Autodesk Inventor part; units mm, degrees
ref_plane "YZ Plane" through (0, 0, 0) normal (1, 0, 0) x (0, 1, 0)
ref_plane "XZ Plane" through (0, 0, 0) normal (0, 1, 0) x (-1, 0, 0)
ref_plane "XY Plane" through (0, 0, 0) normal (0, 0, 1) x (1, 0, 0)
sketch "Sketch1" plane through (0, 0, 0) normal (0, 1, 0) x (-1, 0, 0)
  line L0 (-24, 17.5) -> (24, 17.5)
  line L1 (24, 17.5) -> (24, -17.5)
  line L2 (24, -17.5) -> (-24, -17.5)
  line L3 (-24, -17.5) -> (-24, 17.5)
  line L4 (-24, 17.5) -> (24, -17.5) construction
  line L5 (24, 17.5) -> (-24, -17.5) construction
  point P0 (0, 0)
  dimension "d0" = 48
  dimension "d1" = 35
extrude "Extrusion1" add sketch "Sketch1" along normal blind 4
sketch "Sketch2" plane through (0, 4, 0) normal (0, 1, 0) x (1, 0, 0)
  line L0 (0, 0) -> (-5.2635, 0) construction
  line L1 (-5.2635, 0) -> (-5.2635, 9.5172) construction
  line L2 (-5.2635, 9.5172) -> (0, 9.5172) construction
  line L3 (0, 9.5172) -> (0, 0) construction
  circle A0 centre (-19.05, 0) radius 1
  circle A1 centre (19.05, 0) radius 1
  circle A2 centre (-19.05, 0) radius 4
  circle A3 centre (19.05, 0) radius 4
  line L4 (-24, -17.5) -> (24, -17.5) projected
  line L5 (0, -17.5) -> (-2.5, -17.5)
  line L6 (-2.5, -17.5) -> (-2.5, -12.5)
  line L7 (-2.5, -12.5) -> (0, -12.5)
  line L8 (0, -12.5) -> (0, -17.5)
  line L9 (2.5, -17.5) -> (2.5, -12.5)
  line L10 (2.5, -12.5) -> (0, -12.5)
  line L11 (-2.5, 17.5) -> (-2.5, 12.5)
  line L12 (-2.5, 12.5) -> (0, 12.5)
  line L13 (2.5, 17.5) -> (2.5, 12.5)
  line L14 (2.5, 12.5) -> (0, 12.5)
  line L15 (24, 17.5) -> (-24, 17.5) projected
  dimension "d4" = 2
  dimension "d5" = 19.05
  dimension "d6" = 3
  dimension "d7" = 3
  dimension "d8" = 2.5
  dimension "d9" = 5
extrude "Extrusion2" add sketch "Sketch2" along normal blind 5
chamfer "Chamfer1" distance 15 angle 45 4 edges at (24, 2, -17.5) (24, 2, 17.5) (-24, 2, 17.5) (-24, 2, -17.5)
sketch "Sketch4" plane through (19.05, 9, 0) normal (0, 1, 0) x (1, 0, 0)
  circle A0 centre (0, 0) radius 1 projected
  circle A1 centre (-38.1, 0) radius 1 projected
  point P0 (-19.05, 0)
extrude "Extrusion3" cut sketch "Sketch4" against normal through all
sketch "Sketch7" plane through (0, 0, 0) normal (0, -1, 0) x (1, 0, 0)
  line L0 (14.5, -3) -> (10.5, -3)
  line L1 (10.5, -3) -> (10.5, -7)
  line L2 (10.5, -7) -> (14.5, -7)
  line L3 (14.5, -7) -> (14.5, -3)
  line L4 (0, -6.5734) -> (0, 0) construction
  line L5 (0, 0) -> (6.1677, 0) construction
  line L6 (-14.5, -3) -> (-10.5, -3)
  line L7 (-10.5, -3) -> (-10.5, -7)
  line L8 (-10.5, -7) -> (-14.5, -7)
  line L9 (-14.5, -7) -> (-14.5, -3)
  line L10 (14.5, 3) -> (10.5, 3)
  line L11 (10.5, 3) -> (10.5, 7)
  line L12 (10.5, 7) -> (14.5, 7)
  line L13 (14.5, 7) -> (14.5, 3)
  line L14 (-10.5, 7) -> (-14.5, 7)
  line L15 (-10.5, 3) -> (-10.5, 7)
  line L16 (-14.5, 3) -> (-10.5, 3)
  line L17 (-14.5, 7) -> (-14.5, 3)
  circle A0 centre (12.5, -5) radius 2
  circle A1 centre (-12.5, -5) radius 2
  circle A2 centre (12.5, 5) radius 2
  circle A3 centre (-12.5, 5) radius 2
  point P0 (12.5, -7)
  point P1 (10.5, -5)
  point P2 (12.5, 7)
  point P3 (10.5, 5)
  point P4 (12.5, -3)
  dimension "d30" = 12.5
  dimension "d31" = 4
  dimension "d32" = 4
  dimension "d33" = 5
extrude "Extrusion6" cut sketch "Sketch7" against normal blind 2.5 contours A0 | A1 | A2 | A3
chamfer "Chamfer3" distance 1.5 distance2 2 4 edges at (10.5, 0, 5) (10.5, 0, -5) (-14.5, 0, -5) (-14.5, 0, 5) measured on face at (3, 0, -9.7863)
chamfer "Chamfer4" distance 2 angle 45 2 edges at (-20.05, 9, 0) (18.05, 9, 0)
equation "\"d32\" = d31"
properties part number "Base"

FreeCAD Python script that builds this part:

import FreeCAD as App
import Part
import Sketcher
from FreeCAD import Vector
Q = App.Units.Quantity


def edges_at(feature, points):
    """Names of the edges that pass closest to the given points."""
    edges = feature.Shape.Edges
    near = lambda p: min(range(len(edges)), key=lambda i: edges[i].distToShape(Part.Vertex(*p))[0])
    return sorted({f"Edge{near(p) + 1}" for p in points})


def add_polygon(sketch, points):
    """Adds a closed chain of lines whose ends are joined by coincident constraints."""
    first, n = sketch.GeometryCount, len(points)
    for a, b in zip(points, points[1:] + points[:1]):
        sketch.addGeometry(Part.LineSegment(App.Vector(*a, 0), App.Vector(*b, 0)), False)
    for i in range(n):
        sketch.addConstraint(Sketcher.Constraint("Coincident", first + i, 2, first + (i + 1) % n, 1))

doc = App.newDocument("Part")
body = doc.addObject("PartDesign::Body", "Body")

sketch1 = body.newObject("Sketcher::SketchObject", "Sketch")
sketch1.AttachmentSupport = (doc.getObject("XZ_Plane"), [""])
sketch1.MapMode = "FlatFace"
add_polygon(sketch1, [(-24, 18), (24, 18), (24, -18), (-24, -18)])
sketch1.addConstraint(Sketcher.Constraint("Horizontal", 0))
sketch1.addConstraint(Sketcher.Constraint("Vertical", 1))
sketch1.addConstraint(Sketcher.Constraint("Horizontal", 2))
sketch1.addConstraint(Sketcher.Constraint("Vertical", 3))
sketch1.addConstraint(Sketcher.Constraint("Symmetric", 0, 2, 2, 2, -1, 1))
sketch1.addConstraint(Sketcher.Constraint("DistanceX", 0, 1, 0, 2, Q("48 mm")))
sketch1.addConstraint(Sketcher.Constraint("DistanceY", 1, 2, 1, 1, Q("35 mm")))
pad1 = body.newObject("PartDesign::Pad", "Pad")
pad1.Profile = sketch1
pad1.Length = 4
pad1.Reversed = True

sketch2 = body.newObject("Sketcher::SketchObject", "Sketch001")
sketch2.AttachmentSupport = (doc.getObject("XZ_Plane"), [""])
sketch2.MapMode = "FlatFace"
sketch2.AttachmentOffset = App.Placement(Vector(0, 0, -4), App.Rotation())
sketch2.addGeometry(Part.Circle(Vector(-19.1, 0, 0), Vector(0, 0, 1), 4), False)
sketch2.addGeometry(Part.Circle(Vector(-19.1, 0, 0), Vector(0, 0, 1), 1), False)
sketch2.addGeometry(Part.Circle(Vector(19.1, 0, 0), Vector(0, 0, 1), 4), False)
sketch2.addGeometry(Part.Circle(Vector(19.1, 0, 0), Vector(0, 0, 1), 1), False)
add_polygon(sketch2, [(-2.5, 12.5), (-2.5, 17.5), (2.5, 17.5), (2.5, 12.5)])
add_polygon(sketch2, [(2.5, -17.5), (-2.5, -17.5), (-2.5, -12.5), (2.5, -12.5)])
sketch2.addConstraint(Sketcher.Constraint("Vertical", 4))
sketch2.addConstraint(Sketcher.Constraint("Horizontal", 5))
sketch2.addConstraint(Sketcher.Constraint("Vertical", 6))
sketch2.addConstraint(Sketcher.Constraint("Horizontal", 7))
sketch2.addConstraint(Sketcher.Constraint("Horizontal", 8))
sketch2.addConstraint(Sketcher.Constraint("Vertical", 9))
sketch2.addConstraint(Sketcher.Constraint("Horizontal", 10))
sketch2.addConstraint(Sketcher.Constraint("Vertical", 11))
sketch2.addConstraint(Sketcher.Constraint("Coincident", 1, 3, 0, 3))
sketch2.addConstraint(Sketcher.Constraint("Coincident", 3, 3, 2, 3))
sketch2.addConstraint(Sketcher.Constraint("Equal", 0, 2))
sketch2.addConstraint(Sketcher.Constraint("Equal", 1, 3))
sketch2.addConstraint(Sketcher.Constraint("Symmetric", 0, 3, 2, 3, -1, 1))
sketch2.addConstraint(Sketcher.Constraint("Symmetric", 5, 2, 8, 2, -1, 1))
sketch2.addConstraint(Sketcher.Constraint("Symmetric", 7, 2, 10, 2, -1, 1))
sketch2.addConstraint(Sketcher.Constraint("PointOnObject", 0, 3, -1))
sketch2.addConstraint(Sketcher.Constraint("Vertical", 7, 2, 8, 2))
sketch2.addConstraint(Sketcher.Constraint("Equal", 10, 4))
sketch2.addConstraint(Sketcher.Constraint("Diameter", 1, Q("2 mm")))
sketch2.addConstraint(Sketcher.Constraint("DistanceX", 5, 1, 5, 2, Q("5 mm")))
sketch2.addConstraint(Sketcher.Constraint("Diameter", 0, Q("8 mm")))
sketch2.addConstraint(Sketcher.Constraint("DistanceX", 0, 3, -1, 1, Q("19.05 mm")))
sketch2.addConstraint(Sketcher.Constraint("DistanceY", 8, 2, 7, 2, Q("30 mm")))
pad2 = body.newObject("PartDesign::Pad", "Pad001")
pad2.Profile = sketch2
pad2.Length = 5
pad2.Reversed = True
doc.recompute()

chamfer = body.newObject("PartDesign::Chamfer", "Chamfer")
chamfer.Base = (pad2, edges_at(pad2, [
    (24, 2, -17.5),
    (24, 2, 17.5),
    (-24, 2, 17.5),
    (-24, 2, -17.5),
]))
chamfer.Size = 15

sketch3 = body.newObject("Sketcher::SketchObject", "Sketch002")
sketch3.AttachmentSupport = (doc.getObject("XZ_Plane"), [""])
sketch3.MapMode = "FlatFace"
sketch3.AttachmentOffset = App.Placement(Vector(0, 0, -9), App.Rotation())
sketch3.addGeometry(Part.Circle(Vector(19.1, 0, 0), Vector(0, 0, 1), 1), False)
sketch3.addGeometry(Part.Circle(Vector(-19.1, 0, 0), Vector(0, 0, 1), 1), False)
sketch3.addConstraint(Sketcher.Constraint("Equal", 0, 1))
sketch3.addConstraint(Sketcher.Constraint("Symmetric", 0, 3, 1, 3, -1, 1))
sketch3.addConstraint(Sketcher.Constraint("PointOnObject", 0, 3, -1))
sketch3.addConstraint(Sketcher.Constraint("Diameter", 0, Q("2 mm")))
sketch3.addConstraint(Sketcher.Constraint("DistanceX", 1, 3, 0, 3, Q("38.1 mm")))
pocket1 = body.newObject("PartDesign::Pocket", "Pocket")
pocket1.Profile = sketch3
pocket1.Type = "ThroughAll"
pocket1.Reversed = True

sketch4 = body.newObject("Sketcher::SketchObject", "Sketch003")
sketch4.AttachmentSupport = (doc.getObject("XZ_Plane"), [""])
sketch4.MapMode = "FlatFace"
sketch4.addGeometry(Part.Circle(Vector(12.5, -5, 0), Vector(0, 0, 1), 2), False)
sketch4.addGeometry(Part.Circle(Vector(-12.5, -5, 0), Vector(0, 0, 1), 2), False)
sketch4.addGeometry(Part.Circle(Vector(12.5, 5, 0), Vector(0, 0, 1), 2), False)
sketch4.addGeometry(Part.Circle(Vector(-12.5, 5, 0), Vector(0, 0, 1), 2), False)
sketch4.addConstraint(Sketcher.Constraint("Equal", 0, 1))
sketch4.addConstraint(Sketcher.Constraint("Equal", 1, 2))
sketch4.addConstraint(Sketcher.Constraint("Equal", 2, 3))
sketch4.addConstraint(Sketcher.Constraint("Symmetric", 1, 3, 2, 3, -1, 1))
sketch4.addConstraint(Sketcher.Constraint("Symmetric", 0, 3, 3, 3, -1, 1))
sketch4.addConstraint(Sketcher.Constraint("Symmetric", 0, 3, 1, 3, -2))
sketch4.addConstraint(Sketcher.Constraint("Diameter", 0, Q("4 mm")))
sketch4.addConstraint(Sketcher.Constraint("DistanceY", 0, 3, -1, 1, Q("5 mm")))
sketch4.addConstraint(Sketcher.Constraint("DistanceX", -1, 1, 0, 3, Q("12.5 mm")))
pocket2 = body.newObject("PartDesign::Pocket", "Pocket001")
pocket2.Profile = sketch4
pocket2.Length = 2.5
doc.recompute()

chamfer2 = body.newObject("PartDesign::Chamfer", "Chamfer001")
chamfer2.Base = (pocket2, edges_at(pocket2, [
    (10.5, 0, 5),
    (10.5, 0, -5),
    (-14.5, 0, -5),
    (-14.5, 0, 5),
]))
chamfer2.ChamferType = "Two distances"
chamfer2.Size = 1.5
chamfer2.Size2 = 2
doc.recompute()

chamfer3 = body.newObject("PartDesign::Chamfer", "Chamfer002")
chamfer3.Base = (chamfer2, edges_at(chamfer2, [(-20.05, 9, 0), (18.05, 9, 0)]))
chamfer3.Size = 2

doc.recompute()
